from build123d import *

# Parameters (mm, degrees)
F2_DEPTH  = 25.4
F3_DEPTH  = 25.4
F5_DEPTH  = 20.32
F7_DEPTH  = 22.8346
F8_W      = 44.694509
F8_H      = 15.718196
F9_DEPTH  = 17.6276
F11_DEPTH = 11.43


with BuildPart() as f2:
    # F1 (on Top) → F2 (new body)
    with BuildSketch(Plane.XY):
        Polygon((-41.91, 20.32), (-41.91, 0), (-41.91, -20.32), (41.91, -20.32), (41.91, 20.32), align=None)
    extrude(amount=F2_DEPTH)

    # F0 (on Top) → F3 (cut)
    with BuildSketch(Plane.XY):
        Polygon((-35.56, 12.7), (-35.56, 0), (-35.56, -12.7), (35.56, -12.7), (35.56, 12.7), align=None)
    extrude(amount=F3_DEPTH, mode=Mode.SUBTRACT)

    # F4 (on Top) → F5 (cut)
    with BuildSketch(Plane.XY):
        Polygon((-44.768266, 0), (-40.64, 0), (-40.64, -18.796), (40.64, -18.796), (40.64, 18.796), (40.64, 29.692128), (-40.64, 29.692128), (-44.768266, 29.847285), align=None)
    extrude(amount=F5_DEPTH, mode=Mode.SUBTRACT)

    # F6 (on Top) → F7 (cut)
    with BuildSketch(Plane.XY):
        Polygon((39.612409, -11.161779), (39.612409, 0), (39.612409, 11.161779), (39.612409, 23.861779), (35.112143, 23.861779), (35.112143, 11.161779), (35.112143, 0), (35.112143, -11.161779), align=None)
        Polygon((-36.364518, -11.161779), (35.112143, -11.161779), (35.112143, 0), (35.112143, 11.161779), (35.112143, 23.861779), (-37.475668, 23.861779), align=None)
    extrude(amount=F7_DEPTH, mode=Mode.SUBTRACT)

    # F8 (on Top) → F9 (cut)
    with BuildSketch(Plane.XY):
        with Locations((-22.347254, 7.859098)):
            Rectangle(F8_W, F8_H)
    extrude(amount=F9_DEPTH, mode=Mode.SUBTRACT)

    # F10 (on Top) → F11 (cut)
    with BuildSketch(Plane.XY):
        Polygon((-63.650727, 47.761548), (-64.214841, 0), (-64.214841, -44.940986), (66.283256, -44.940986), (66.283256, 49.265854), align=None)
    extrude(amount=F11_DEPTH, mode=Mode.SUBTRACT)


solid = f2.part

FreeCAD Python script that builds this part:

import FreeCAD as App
import Part
import Sketcher

V = App.Vector
Q = App.Units.Quantity

doc = App.newDocument("Part")
body = doc.addObject("PartDesign::Body", "Body")

# Sketch on XY plane
sketch1 = body.newObject("Sketcher::SketchObject", "Sketch")
sketch1.AttachmentSupport = (doc.getObject("XY_Plane"), [""])
sketch1.MapMode = "FlatFace"
sketch1.addGeometry([
    Part.LineSegment(V(-42, 20, 0), V(-42, -20, 0)),
    Part.LineSegment(V(-42, -20, 0), V(42, -20, 0)),
    Part.LineSegment(V(42, -20, 0), V(42, 20, 0)),
    Part.LineSegment(V(42, 20, 0), V(-42, 20, 0)),
], False)
sketch1.addConstraint([
    Sketcher.Constraint("Coincident", 0, 2, 1, 1),
    Sketcher.Constraint("Coincident", 1, 2, 2, 1),
    Sketcher.Constraint("Coincident", 2, 2, 3, 1),
    Sketcher.Constraint("Coincident", 3, 2, 0, 1),
    Sketcher.Constraint("Vertical", 0),
    Sketcher.Constraint("Horizontal", 1),
    Sketcher.Constraint("Vertical", 2),
    Sketcher.Constraint("Horizontal", 3),
    Sketcher.Constraint("Symmetric", 0, 2, 2, 2, -1, 1),
    Sketcher.Constraint("DistanceX", 1, 1, 1, 2, Q("3.3 in")),
    Sketcher.Constraint("DistanceY", 0, 2, 0, 1, Q("1.6 in")),
])
pad1 = body.newObject("PartDesign::Pad", "Pad")
pad1.Profile = sketch1
pad1.Length = Q("1 in")

# Sketch on XY plane
sketch2 = body.newObject("Sketcher::SketchObject", "Sketch001")
sketch2.AttachmentSupport = (doc.getObject("XY_Plane"), [""])
sketch2.MapMode = "FlatFace"
sketch2.addGeometry([
    Part.LineSegment(V(-36, 13, 0), V(-36, -13, 0)),
    Part.LineSegment(V(-36, -13, 0), V(36, -13, 0)),
    Part.LineSegment(V(36, -13, 0), V(36, 13, 0)),
    Part.LineSegment(V(36, 13, 0), V(-36, 13, 0)),
], False)
sketch2.addConstraint([
    Sketcher.Constraint("Coincident", 0, 2, 1, 1),
    Sketcher.Constraint("Coincident", 1, 2, 2, 1),
    Sketcher.Constraint("Coincident", 2, 2, 3, 1),
    Sketcher.Constraint("Coincident", 3, 2, 0, 1),
    Sketcher.Constraint("Vertical", 0),
    Sketcher.Constraint("Horizontal", 1),
    Sketcher.Constraint("Vertical", 2),
    Sketcher.Constraint("Horizontal", 3),
    Sketcher.Constraint("Symmetric", 0, 2, 2, 2, -1, 1),
    Sketcher.Constraint("DistanceY", 0, 2, 0, 1, Q("1 in")),
    Sketcher.Constraint("DistanceX", 1, 1, 1, 2, Q("2.8 in")),
])
pocket1 = body.newObject("PartDesign::Pocket", "Pocket")
pocket1.Profile = sketch2
pocket1.Length = Q("1 in")
pocket1.Reversed = True

# Sketch on XY plane
sketch3 = body.newObject("Sketcher::SketchObject", "Sketch002")
sketch3.AttachmentSupport = (doc.getObject("XY_Plane"), [""])
sketch3.MapMode = "FlatFace"
sketch3.addGeometry([
    Part.LineSegment(V(-44.8, 0, 0), V(-40.6, 0, 0)),  # 0
    Part.LineSegment(V(-40.6, 0, 0), V(-40.6, -18.8, 0)),  # 1
    Part.LineSegment(V(-40.6, -18.8, 0), V(40.6, -18.8, 0)),  # 2
    Part.LineSegment(V(40.6, -18.8, 0), V(40.6, 29.7, 0)),  # 3
    Part.LineSegment(V(40.6, 29.7, 0), V(-40.6, 29.7, 0)),  # 4
    Part.LineSegment(V(-40.6, 29.7, 0), V(-44.8, 29.8, 0)),  # 5
    Part.LineSegment(V(-44.8, 29.8, 0), V(-44.8, 0, 0)),  # 6
], False)
sketch3.addConstraint([
    Sketcher.Constraint("Coincident", 0, 2, 1, 1),
    Sketcher.Constraint("Coincident", 1, 2, 2, 1),
    Sketcher.Constraint("Coincident", 2, 2, 3, 1),
    Sketcher.Constraint("Coincident", 3, 2, 4, 1),
    Sketcher.Constraint("Coincident", 4, 2, 5, 1),
    Sketcher.Constraint("Coincident", 5, 2, 6, 1),
    Sketcher.Constraint("Coincident", 6, 2, 0, 1),
    Sketcher.Constraint("Horizontal", 0),
    Sketcher.Constraint("Vertical", 1),
    Sketcher.Constraint("Horizontal", 2),
    Sketcher.Constraint("Vertical", 3),
    Sketcher.Constraint("Horizontal", 4),
    Sketcher.Constraint("Vertical", 6),
    Sketcher.Constraint("PointOnObject", 0, 2, -1),
    Sketcher.Constraint("Vertical", 1, 2, 4, 2),
    Sketcher.Constraint("DistanceX", 2, 1, 2, 2, Q("3.2 in")),
    Sketcher.Constraint("DistanceY", 1, 2, 1, 1, Q("0.74 in")),
    Sketcher.Constraint("DistanceX", 0, 2, -1, 1, Q("1.6 in")),
    Sketcher.Constraint("DistanceY", 3, 1, 3, 2, Q("48.488128 mm")),
    Sketcher.Constraint("Distance", 5, Q("4.131181 mm")),
    Sketcher.Constraint("DistanceX", 0, 1, 0, 2, Q("4.128266 mm")),
])
pocket2 = body.newObject("PartDesign::Pocket", "Pocket001")
pocket2.Profile = sketch3
pocket2.Length = Q("0.8 in")
pocket2.Reversed = True

# Sketch on XY plane
sketch4 = body.newObject("Sketcher::SketchObject", "Sketch003")
sketch4.AttachmentSupport = (doc.getObject("XY_Plane"), [""])
sketch4.MapMode = "FlatFace"
sketch4.addGeometry([
    Part.LineSegment(V(40, -11, 0), V(40, 24, 0)),
    Part.LineSegment(V(40, 24, 0), V(-37, 24, 0)),
    Part.LineSegment(V(-37, 24, 0), V(-36, -11, 0)),
    Part.LineSegment(V(-36, -11, 0), V(40, -11, 0)),
], False)
sketch4.addConstraint([
    Sketcher.Constraint("Coincident", 0, 2, 1, 1),
    Sketcher.Constraint("Coincident", 1, 2, 2, 1),
    Sketcher.Constraint("Coincident", 2, 2, 3, 1),
    Sketcher.Constraint("Coincident", 3, 2, 0, 1),
    Sketcher.Constraint("Vertical", 0),
    Sketcher.Constraint("Horizontal", 1),
    Sketcher.Constraint("Horizontal", 3),
    Sketcher.Constraint("Distance", 2, Q("35.04118 mm")),
    Sketcher.Constraint("DistanceX", 1, 2, 1, 1, Q("77.088077 mm")),
    Sketcher.Constraint("DistanceX", 3, 1, 3, 2, Q("75.976927 mm")),
    Sketcher.Constraint("DistanceX", -1, 1, 0, 2, Q("39.612409 mm")),
    Sketcher.Constraint("DistanceY", -1, 1, 0, 2, Q("23.861779 mm")),
])
pocket3 = body.newObject("PartDesign::Pocket", "Pocket002")
pocket3.Profile = sketch4
pocket3.Length = Q("0.899 in")
pocket3.Reversed = True

# Sketch on XY plane
sketch5 = body.newObject("Sketcher::SketchObject", "Sketch004")
sketch5.AttachmentSupport = (doc.getObject("XY_Plane"), [""])
sketch5.MapMode = "FlatFace"
sketch5.addGeometry([
    Part.LineSegment(V(-45, 16, 0), V(-45, 0, 0)),
    Part.LineSegment(V(-45, 0, 0), V(0, 0, 0)),
    Part.LineSegment(V(0, 0, 0), V(0, 16, 0)),
    Part.LineSegment(V(0, 16, 0), V(-45, 16, 0)),
], False)
sketch5.addConstraint([
    Sketcher.Constraint("Coincident", 0, 2, 1, 1),
    Sketcher.Constraint("Coincident", 1, 2, 2, 1),
    Sketcher.Constraint("Coincident", 2, 2, 3, 1),
    Sketcher.Constraint("Coincident", 3, 2, 0, 1),
    Sketcher.Constraint("Vertical", 0),
    Sketcher.Constraint("Horizontal", 1),
    Sketcher.Constraint("Vertical", 2),
    Sketcher.Constraint("Horizontal", 3),
    Sketcher.Constraint("Coincident", 1, 2, -1, 1),
    Sketcher.Constraint("DistanceX", 1, 1, 1, 2, Q("44.694509 mm")),
    Sketcher.Constraint("DistanceY", 0, 2, 0, 1, Q("15.718196 mm")),
])
pocket4 = body.newObject("PartDesign::Pocket", "Pocket003")
pocket4.Profile = sketch5
pocket4.Length = Q("0.694 in")
pocket4.Reversed = True

# Sketch on XY plane
sketch6 = body.newObject("Sketcher::SketchObject", "Sketch005")
sketch6.AttachmentSupport = (doc.getObject("XY_Plane"), [""])
sketch6.MapMode = "FlatFace"
sketch6.addGeometry([
    Part.LineSegment(V(-64, 48, 0), V(-64, 0, 0)),  # 0
    Part.LineSegment(V(-64, 0, 0), V(-64, -45, 0)),  # 1
    Part.LineSegment(V(-64, -45, 0), V(66, -45, 0)),  # 2
    Part.LineSegment(V(66, -45, 0), V(66, 49, 0)),  # 3
    Part.LineSegment(V(66, 49, 0), V(-64, 48, 0)),  # 4
], False)
sketch6.addConstraint([
    Sketcher.Constraint("Coincident", 0, 2, 1, 1),
    Sketcher.Constraint("Coincident", 1, 2, 2, 1),
    Sketcher.Constraint("Coincident", 2, 2, 3, 1),
    Sketcher.Constraint("Coincident", 3, 2, 4, 1),
    Sketcher.Constraint("Coincident", 4, 2, 0, 1),
    Sketcher.Constraint("Vertical", 1),
    Sketcher.Constraint("Horizontal", 2),
    Sketcher.Constraint("Vertical", 3),
    Sketcher.Constraint("PointOnObject", 0, 2, -1),
    Sketcher.Constraint("DistanceY", 3, 1, 3, 2, Q("94.20684 mm")),
    Sketcher.Constraint("Distance", 0, Q("47.764879 mm")),
    Sketcher.Constraint("Distance", 4, Q("129.942691 mm")),
    Sketcher.Constraint("DistanceX", 2, 1, 2, 2, Q("130.498097 mm")),
    Sketcher.Constraint("DistanceY", 1, 2, 1, 1, Q("44.940986 mm")),
    Sketcher.Constraint("DistanceX", 0, 2, -1, 1, Q("64.214841 mm")),
])
pocket5 = body.newObject("PartDesign::Pocket", "Pocket004")
pocket5.Profile = sketch6
pocket5.Length = Q("0.45 in")
pocket5.Reversed = True

doc.recompute()
